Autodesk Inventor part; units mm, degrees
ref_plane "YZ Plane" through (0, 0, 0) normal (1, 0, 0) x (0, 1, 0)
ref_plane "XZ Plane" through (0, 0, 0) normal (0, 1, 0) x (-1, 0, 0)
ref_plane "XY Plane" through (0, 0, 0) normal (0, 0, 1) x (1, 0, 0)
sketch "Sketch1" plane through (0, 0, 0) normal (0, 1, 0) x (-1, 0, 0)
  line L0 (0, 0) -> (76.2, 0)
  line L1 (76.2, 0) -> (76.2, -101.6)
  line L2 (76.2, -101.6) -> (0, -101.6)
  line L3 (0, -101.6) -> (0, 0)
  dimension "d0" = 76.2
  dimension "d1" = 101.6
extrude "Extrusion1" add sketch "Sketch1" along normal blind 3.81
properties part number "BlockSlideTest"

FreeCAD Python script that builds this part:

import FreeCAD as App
import Part
import Sketcher

V = App.Vector
Q = App.Units.Quantity


def add_polygon(sketch, points):
    """Adds a closed chain of lines whose ends are joined by coincident constraints."""
    first, n = sketch.GeometryCount, len(points)
    for a, b in zip(points, points[1:] + points[:1]):
        sketch.addGeometry(Part.LineSegment(App.Vector(*a, 0), App.Vector(*b, 0)), False)
    for i in range(n):
        sketch.addConstraint(Sketcher.Constraint("Coincident", first + i, 2, first + (i + 1) % n, 1))

doc = App.newDocument("Part")
params = doc.addObject("Spreadsheet::Sheet", "Params")
for row, (alias, value) in enumerate([
    ("sketch1_width", "3 in"),
    ("sketch1_height", "4 in"),
    ("pad1_length", "0.15 in"),
], start=1):
    params.set(f"A{row}", alias)
    params.set(f"B{row}", "=" + value)
    params.setAlias(f"B{row}", alias)

body = doc.addObject("PartDesign::Body", "Body")

sketch1 = body.newObject("Sketcher::SketchObject", "Sketch")
sketch1.AttachmentSupport = (doc.getObject("XZ_Plane"), [""])
sketch1.MapMode = "FlatFace"
add_polygon(sketch1, [(-76.2, 0), (0, 0), (0, -101.6), (-76.2, -101.6)])
sketch1.addConstraint(Sketcher.Constraint("Horizontal", 0))
sketch1.addConstraint(Sketcher.Constraint("Vertical", 1))
sketch1.addConstraint(Sketcher.Constraint("Horizontal", 2))
sketch1.addConstraint(Sketcher.Constraint("Vertical", 3))
sketch1.addConstraint(Sketcher.Constraint("Coincident", 0, 2, -1, 1))
sketch1.addConstraint(Sketcher.Constraint("DistanceX", 0, 1, 0, 2, Q("3 in")))
sketch1.addConstraint(Sketcher.Constraint("DistanceY", 1, 2, 1, 1, Q("4 in")))
sketch1.setExpression("Constraints[9]", "Params.sketch1_width")
sketch1.setExpression("Constraints[10]", "Params.sketch1_height")
pad1 = body.newObject("PartDesign::Pad", "Pad")
pad1.Profile = sketch1
pad1.setExpression("Length", "Params.pad1_length")
pad1.Reversed = True

doc.recompute()
